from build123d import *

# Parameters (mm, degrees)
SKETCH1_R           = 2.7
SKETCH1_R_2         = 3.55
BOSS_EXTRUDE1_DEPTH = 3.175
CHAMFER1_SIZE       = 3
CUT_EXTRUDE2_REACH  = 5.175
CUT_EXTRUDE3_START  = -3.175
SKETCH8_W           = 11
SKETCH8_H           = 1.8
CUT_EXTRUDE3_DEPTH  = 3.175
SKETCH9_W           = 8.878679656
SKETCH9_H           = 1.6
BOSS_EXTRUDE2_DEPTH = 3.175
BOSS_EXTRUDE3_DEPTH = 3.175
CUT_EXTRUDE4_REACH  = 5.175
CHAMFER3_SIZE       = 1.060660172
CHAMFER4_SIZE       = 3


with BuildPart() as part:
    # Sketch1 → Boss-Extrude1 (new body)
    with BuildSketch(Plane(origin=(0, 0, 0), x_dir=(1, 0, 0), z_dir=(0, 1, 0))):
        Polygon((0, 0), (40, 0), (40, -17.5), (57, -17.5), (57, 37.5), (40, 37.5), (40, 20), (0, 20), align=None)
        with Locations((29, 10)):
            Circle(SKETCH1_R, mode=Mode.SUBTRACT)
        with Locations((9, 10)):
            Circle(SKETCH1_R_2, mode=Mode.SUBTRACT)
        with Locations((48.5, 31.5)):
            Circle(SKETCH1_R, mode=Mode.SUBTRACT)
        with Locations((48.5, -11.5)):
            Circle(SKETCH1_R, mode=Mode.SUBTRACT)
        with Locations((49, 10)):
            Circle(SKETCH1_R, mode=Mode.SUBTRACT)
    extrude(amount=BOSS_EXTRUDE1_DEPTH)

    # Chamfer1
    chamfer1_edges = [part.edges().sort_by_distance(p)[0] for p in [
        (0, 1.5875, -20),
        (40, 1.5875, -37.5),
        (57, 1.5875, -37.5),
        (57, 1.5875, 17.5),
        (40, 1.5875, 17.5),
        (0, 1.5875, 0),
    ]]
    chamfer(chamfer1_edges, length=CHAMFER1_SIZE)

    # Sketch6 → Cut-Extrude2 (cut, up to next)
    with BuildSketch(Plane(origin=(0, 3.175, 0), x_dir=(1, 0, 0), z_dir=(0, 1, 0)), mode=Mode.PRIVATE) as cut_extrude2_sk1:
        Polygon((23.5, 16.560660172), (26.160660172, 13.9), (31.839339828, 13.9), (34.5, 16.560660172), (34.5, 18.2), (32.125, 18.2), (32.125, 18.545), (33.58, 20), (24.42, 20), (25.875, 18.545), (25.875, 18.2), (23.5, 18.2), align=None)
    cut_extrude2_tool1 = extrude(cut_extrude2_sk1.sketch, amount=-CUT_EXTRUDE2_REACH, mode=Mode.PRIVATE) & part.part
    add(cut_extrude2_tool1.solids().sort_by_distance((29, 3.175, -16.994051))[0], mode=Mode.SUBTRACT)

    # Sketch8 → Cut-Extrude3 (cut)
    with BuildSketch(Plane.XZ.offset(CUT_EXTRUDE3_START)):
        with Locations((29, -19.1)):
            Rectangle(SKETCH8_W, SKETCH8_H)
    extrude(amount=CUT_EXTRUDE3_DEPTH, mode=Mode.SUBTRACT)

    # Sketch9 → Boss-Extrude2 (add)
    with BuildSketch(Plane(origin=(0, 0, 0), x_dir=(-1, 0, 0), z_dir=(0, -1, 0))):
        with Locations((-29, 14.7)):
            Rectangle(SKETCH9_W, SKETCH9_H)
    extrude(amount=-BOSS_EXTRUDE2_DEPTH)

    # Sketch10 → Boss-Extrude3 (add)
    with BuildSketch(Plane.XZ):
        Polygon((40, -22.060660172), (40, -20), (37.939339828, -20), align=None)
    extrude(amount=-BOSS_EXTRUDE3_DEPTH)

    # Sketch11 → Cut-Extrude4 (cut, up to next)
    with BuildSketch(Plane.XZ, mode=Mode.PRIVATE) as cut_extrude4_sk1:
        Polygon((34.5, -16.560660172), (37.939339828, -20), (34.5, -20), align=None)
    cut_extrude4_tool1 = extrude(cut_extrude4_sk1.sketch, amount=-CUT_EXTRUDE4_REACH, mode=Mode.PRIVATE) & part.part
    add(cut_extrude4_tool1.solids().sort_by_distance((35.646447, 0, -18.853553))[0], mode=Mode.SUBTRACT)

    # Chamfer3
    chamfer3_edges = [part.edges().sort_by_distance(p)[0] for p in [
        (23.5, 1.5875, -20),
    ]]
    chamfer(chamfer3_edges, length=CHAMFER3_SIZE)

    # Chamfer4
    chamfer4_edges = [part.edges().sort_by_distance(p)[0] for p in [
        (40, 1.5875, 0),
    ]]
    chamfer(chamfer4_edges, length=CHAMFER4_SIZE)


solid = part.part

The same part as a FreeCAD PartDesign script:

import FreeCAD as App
import Part
import Sketcher
from FreeCAD import Vector
Q = App.Units.Quantity


def edges_at(feature, points):
    """Names of the edges that pass closest to the given points."""
    edges = feature.Shape.Edges
    near = lambda p: min(range(len(edges)), key=lambda i: edges[i].distToShape(Part.Vertex(*p))[0])
    return sorted({f"Edge{near(p) + 1}" for p in points})


def add_polygon(sketch, points):
    """Adds a closed chain of lines whose ends are joined by coincident constraints."""
    first, n = sketch.GeometryCount, len(points)
    for a, b in zip(points, points[1:] + points[:1]):
        sketch.addGeometry(Part.LineSegment(App.Vector(*a, 0), App.Vector(*b, 0)), False)
    for i in range(n):
        sketch.addConstraint(Sketcher.Constraint("Coincident", first + i, 2, first + (i + 1) % n, 1))

doc = App.newDocument("Part")
body = doc.addObject("PartDesign::Body", "Body")

# Sketch on XZ plane
sketch1 = doc.addObject("Sketcher::SketchObject", "Sketch")
body.addObject(sketch1)
sketch1.AttachmentSupport = (doc.XZ_Plane, [""])
sketch1.MapMode = "FlatFace"
add_polygon(sketch1, [(0, 0), (40, 0), (40, 17.5), (57, 17.5), (57, -37.5), (40, -37.5), (40, -20), (0, -20)])  # lines 0-7
sketch1.addGeometry(Part.Circle(Vector(48.5, 11.5, 0), Vector(0, 0, 1), 2.7), False)  # 8
sketch1.addGeometry(Part.Circle(Vector(9, -10, 0), Vector(0, 0, 1), 3.5), False)  # 9
sketch1.addGeometry(Part.Circle(Vector(29, -10, 0), Vector(0, 0, 1), 2.7), False)  # 10
sketch1.addGeometry(Part.Circle(Vector(49, -10, 0), Vector(0, 0, 1), 2.7), False)  # 11
sketch1.addGeometry(Part.Circle(Vector(48.5, -31.5, 0), Vector(0, 0, 1), 2.7), False)  # 12
sketch1.addConstraint([
    Sketcher.Constraint("Horizontal", 0),
    Sketcher.Constraint("Vertical", 1),
    Sketcher.Constraint("Horizontal", 2),
    Sketcher.Constraint("Vertical", 3),
    Sketcher.Constraint("Horizontal", 4),
    Sketcher.Constraint("Vertical", 5),
    Sketcher.Constraint("Horizontal", 6),
    Sketcher.Constraint("Vertical", 7),
    Sketcher.Constraint("Coincident", 7, 2, -1, 1),
    Sketcher.Constraint("Equal", 8, 10),
    Sketcher.Constraint("Equal", 10, 11),
    Sketcher.Constraint("Equal", 11, 12),
    Sketcher.Constraint("Horizontal", 9, 3, 10, 3),
    Sketcher.Constraint("Horizontal", 10, 3, 11, 3),
    Sketcher.Constraint("Vertical", 8, 3, 12, 3),
    Sketcher.Constraint("Vertical", 1, 2, 4, 2),
    Sketcher.Constraint("Equal", 1, 5),
    Sketcher.Constraint("Diameter", 8, Q("5.4 mm")),
    Sketcher.Constraint("Diameter", 9, Q("7.1 mm")),
    Sketcher.Constraint("DistanceX", 0, 1, 0, 2, Q("40 mm")),
    Sketcher.Constraint("DistanceX", 2, 1, 2, 2, Q("17 mm")),
    Sketcher.Constraint("DistanceY", 3, 2, 3, 1, Q("55 mm")),
    Sketcher.Constraint("DistanceY", 7, 1, 7, 2, Q("20 mm")),
    Sketcher.Constraint("DistanceX", -1, 1, 9, 3, Q("9 mm")),
    Sketcher.Constraint("DistanceY", 9, 3, -1, 1, Q("10 mm")),
    Sketcher.Constraint("DistanceX", -1, 1, 10, 3, Q("29 mm")),
    Sketcher.Constraint("DistanceX", -1, 1, 11, 3, Q("49 mm")),
    Sketcher.Constraint("DistanceY", 12, 3, 8, 3, Q("43 mm")),
    Sketcher.Constraint("DistanceY", 8, 3, 1, 2, Q("6 mm")),
    Sketcher.Constraint("DistanceX", -1, 1, 8, 3, Q("48.5 mm")),
])
pad1 = doc.addObject("PartDesign::Pad", "Pad")
body.addObject(pad1)
pad1.Profile = sketch1
pad1.Length = 3.175
pad1.Reversed = True
doc.recompute()

chamfer = doc.addObject("PartDesign::Chamfer", "Chamfer")
body.addObject(chamfer)
chamfer.Base = (pad1, edges_at(pad1, [
    (0, 1.587, -20),
    (40, 1.587, -37.5),
    (57, 1.587, -37.5),
    (57, 1.587, 17.5),
    (40, 1.587, 17.5),
    (0, 1.587, 0),
]))
chamfer.Size = 3

# Sketch on XZ plane
sketch2 = doc.addObject("Sketcher::SketchObject", "Sketch001")
body.addObject(sketch2)
sketch2.AttachmentSupport = (doc.XZ_Plane, [""])
sketch2.MapMode = "FlatFace"
sketch2.AttachmentOffset = App.Placement(Vector(0, 0, -3.175), App.Rotation())
add_polygon(sketch2, [(23.5, -16.56), (26.16, -13.9), (31.84, -13.9), (34.5, -16.56), (34.5, -18.2), (32.12, -18.2), (32.12, -18.55), (33.58, -20), (24.42, -20), (25.88, -18.55), (25.88, -18.2), (23.5, -18.2)])  # lines 0-11
sketch2.addConstraint([
    Sketcher.Constraint("Horizontal", 1),
    Sketcher.Constraint("Vertical", 3),
    Sketcher.Constraint("Horizontal", 4),
    Sketcher.Constraint("Vertical", 5),
    Sketcher.Constraint("Horizontal", 7),
    Sketcher.Constraint("Vertical", 9),
    Sketcher.Constraint("Horizontal", 10),
    Sketcher.Constraint("Vertical", 11),
    Sketcher.Constraint("Perpendicular", 0, 2),
    Sketcher.Constraint("Parallel", 2, 6),
    Sketcher.Constraint("Perpendicular", 6, 8),
    Sketcher.Constraint("Horizontal", 5, 2, 8, 2),
    Sketcher.Constraint("Horizontal", 4, 2, 9, 2),
    Sketcher.Constraint("Horizontal", 2, 2, 11, 2),
    Sketcher.Constraint("Equal", 4, 10),
    Sketcher.Constraint("Equal", 0, 2),
    Sketcher.Constraint("DistanceY", 6, 2, -1, 1, Q("20 mm")),
    Sketcher.Constraint("DistanceX", 7, 2, 7, 1, Q("9.16 mm")),
    Sketcher.Constraint("DistanceY", 0, 2, -1, 1, Q("13.9 mm")),
    Sketcher.Constraint("DistanceX", -1, 1, 2, 2, Q("34.5 mm")),
    Sketcher.Constraint("DistanceY", 3, 2, -1, 1, Q("18.2 mm")),
    Sketcher.Constraint("DistanceX", -1, 1, 10, 2, Q("23.5 mm")),
    Sketcher.Constraint("DistanceX", 4, 2, 4, 1, Q("2.375 mm")),
    Sketcher.Constraint("DistanceX", 1, 1, 1, 2, Q("5.67868 mm")),
])
pocket1 = doc.addObject("PartDesign::Pocket", "Pocket")
body.addObject(pocket1)
pocket1.Profile = sketch2
pocket1.Type = "UpToFirst"
pocket1.Reversed = True

# Sketch on XZ plane
sketch3 = doc.addObject("Sketcher::SketchObject", "Sketch002")
body.addObject(sketch3)
sketch3.AttachmentSupport = (doc.XZ_Plane, [""])
sketch3.MapMode = "FlatFace"
sketch3.AttachmentOffset = App.Placement(Vector(0, 0, -3.175), App.Rotation())
add_polygon(sketch3, [(23.5, -18.2), (23.5, -20), (34.5, -20), (34.5, -18.2)])  # lines 0-3
sketch3.addConstraint([
    Sketcher.Constraint("Vertical", 0),
    Sketcher.Constraint("Horizontal", 1),
    Sketcher.Constraint("Vertical", 2),
    Sketcher.Constraint("Horizontal", 3),
    Sketcher.Constraint("DistanceX", 1, 1, 1, 2, Q("11 mm")),
    Sketcher.Constraint("DistanceY", 0, 2, 0, 1, Q("1.8 mm")),
    Sketcher.Constraint("DistanceY", 0, 2, -1, 1, Q("20 mm")),
    Sketcher.Constraint("DistanceX", -1, 1, 0, 2, Q("23.5 mm")),
])
pocket2 = doc.addObject("PartDesign::Pocket", "Pocket001")
body.addObject(pocket2)
pocket2.Profile = sketch3
pocket2.Length = 3.175
pocket2.Reversed = True

# Sketch on XZ plane
sketch4 = doc.addObject("Sketcher::SketchObject", "Sketch003")
body.addObject(sketch4)
sketch4.AttachmentSupport = (doc.XZ_Plane, [""])
sketch4.MapMode = "FlatFace"
add_polygon(sketch4, [(33.4, -15.5), (33.4, -13.9), (24.6, -13.9), (24.6, -15.5)])  # lines 0-3
sketch4.addConstraint([
    Sketcher.Constraint("Vertical", 0),
    Sketcher.Constraint("Horizontal", 1),
    Sketcher.Constraint("Vertical", 2),
    Sketcher.Constraint("Horizontal", 3),
    Sketcher.Constraint("DistanceY", 0, 1, 0, 2, Q("1.6 mm")),
    Sketcher.Constraint("DistanceY", 0, 2, -1, 1, Q("13.9 mm")),
    Sketcher.Constraint("DistanceX", 1, 2, 1, 1, Q("8.87868 mm")),
    Sketcher.Constraint("DistanceX", -1, 1, 0, 2, Q("33.43934 mm")),
])
pad2 = doc.addObject("PartDesign::Pad", "Pad001")
body.addObject(pad2)
pad2.Profile = sketch4
pad2.Length = 3.175
pad2.Reversed = True

# Sketch on XZ plane
sketch5 = doc.addObject("Sketcher::SketchObject", "Sketch004")
body.addObject(sketch5)
sketch5.AttachmentSupport = (doc.XZ_Plane, [""])
sketch5.MapMode = "FlatFace"
add_polygon(sketch5, [(40, -22.1), (40, -20), (37.9, -20)])  # lines 0-2
sketch5.addConstraint([
    Sketcher.Constraint("Vertical", 0),
    Sketcher.Constraint("Horizontal", 1),
    Sketcher.Constraint("Equal", 1, 0),
    Sketcher.Constraint("DistanceX", -1, 1, 0, 2, Q("40 mm")),
    Sketcher.Constraint("DistanceY", 0, 2, -1, 1, Q("20 mm")),
    Sketcher.Constraint("DistanceX", 1, 2, 1, 1, Q("2.06066 mm")),
])
pad3 = doc.addObject("PartDesign::Pad", "Pad002")
body.addObject(pad3)
pad3.Profile = sketch5
pad3.Length = 3.175
pad3.Reversed = True

# Sketch on XZ plane
sketch6 = doc.addObject("Sketcher::SketchObject", "Sketch005")
body.addObject(sketch6)
sketch6.AttachmentSupport = (doc.XZ_Plane, [""])
sketch6.MapMode = "FlatFace"
add_polygon(sketch6, [(37.9, -20), (34.5, -16.6), (34.5, -20)])  # lines 0-2
sketch6.addConstraint([
    Sketcher.Constraint("Vertical", 1),
    Sketcher.Constraint("Horizontal", 2),
    Sketcher.Constraint("Equal", 2, 1),
    Sketcher.Constraint("DistanceY", 1, 2, -1, 1, Q("20 mm")),
    Sketcher.Constraint("DistanceX", -1, 1, 0, 2, Q("34.5 mm")),
    Sketcher.Constraint("DistanceX", 2, 1, 2, 2, Q("3.43934 mm")),
])
pocket3 = doc.addObject("PartDesign::Pocket", "Pocket002")
body.addObject(pocket3)
pocket3.Profile = sketch6
pocket3.Type = "UpToFirst"
doc.recompute()

chamfer2 = doc.addObject("PartDesign::Chamfer", "Chamfer001")
body.addObject(chamfer2)
chamfer2.Base = (pocket3, edges_at(pocket3, [(23.5, 1.587, -20)]))
chamfer2.Size = 1.06066
doc.recompute()

chamfer3 = doc.addObject("PartDesign::Chamfer", "Chamfer002")
body.addObject(chamfer3)
chamfer3.Base = (chamfer2, edges_at(chamfer2, [(40, 1.587, 0)]))
chamfer3.Size = 3

doc.recompute()
